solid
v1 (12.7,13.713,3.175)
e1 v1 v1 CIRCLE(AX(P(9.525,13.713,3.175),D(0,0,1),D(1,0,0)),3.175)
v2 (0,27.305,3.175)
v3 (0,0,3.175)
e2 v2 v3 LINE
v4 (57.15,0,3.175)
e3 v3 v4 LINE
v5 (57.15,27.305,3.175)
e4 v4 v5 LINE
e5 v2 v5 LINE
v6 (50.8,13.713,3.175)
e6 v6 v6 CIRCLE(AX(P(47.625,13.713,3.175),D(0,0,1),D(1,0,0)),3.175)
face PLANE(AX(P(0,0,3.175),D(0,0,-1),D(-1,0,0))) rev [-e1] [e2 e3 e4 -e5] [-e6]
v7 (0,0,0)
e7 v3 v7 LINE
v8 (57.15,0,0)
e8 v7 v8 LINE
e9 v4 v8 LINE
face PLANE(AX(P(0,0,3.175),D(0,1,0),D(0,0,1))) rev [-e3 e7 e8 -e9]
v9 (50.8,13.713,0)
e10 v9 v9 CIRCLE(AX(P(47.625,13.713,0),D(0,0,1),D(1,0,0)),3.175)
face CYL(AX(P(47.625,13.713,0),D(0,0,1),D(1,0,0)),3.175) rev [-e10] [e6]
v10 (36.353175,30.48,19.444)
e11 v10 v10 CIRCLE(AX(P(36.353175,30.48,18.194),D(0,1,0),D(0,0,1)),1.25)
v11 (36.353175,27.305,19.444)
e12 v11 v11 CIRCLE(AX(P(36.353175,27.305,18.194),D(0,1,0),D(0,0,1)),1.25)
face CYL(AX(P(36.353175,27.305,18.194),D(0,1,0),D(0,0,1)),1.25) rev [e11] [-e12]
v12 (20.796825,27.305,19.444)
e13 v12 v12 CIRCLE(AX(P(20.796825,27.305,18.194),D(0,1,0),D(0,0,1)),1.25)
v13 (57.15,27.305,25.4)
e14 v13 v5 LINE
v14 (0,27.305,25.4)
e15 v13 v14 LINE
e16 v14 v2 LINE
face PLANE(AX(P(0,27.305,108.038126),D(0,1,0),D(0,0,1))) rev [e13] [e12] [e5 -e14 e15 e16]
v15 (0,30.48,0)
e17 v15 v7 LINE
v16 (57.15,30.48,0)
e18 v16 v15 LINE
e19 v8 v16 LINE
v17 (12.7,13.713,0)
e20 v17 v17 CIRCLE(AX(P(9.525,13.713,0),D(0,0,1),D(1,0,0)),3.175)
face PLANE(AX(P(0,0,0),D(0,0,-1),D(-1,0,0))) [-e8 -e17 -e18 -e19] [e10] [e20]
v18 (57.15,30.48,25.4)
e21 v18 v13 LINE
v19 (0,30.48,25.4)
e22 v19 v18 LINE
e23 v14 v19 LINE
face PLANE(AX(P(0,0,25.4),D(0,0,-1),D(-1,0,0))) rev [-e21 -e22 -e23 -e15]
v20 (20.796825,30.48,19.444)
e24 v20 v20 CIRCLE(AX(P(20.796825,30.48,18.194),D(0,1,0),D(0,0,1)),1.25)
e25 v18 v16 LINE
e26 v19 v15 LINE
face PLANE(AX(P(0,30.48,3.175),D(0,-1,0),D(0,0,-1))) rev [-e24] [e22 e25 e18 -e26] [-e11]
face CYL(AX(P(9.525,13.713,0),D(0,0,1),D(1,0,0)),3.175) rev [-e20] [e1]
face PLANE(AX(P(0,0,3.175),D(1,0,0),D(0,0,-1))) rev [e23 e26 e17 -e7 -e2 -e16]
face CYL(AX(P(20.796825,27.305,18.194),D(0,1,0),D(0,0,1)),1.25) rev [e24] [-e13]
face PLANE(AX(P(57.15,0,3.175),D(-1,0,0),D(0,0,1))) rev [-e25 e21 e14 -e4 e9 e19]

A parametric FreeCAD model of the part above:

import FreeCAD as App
import Part
import Sketcher
from FreeCAD import Vector
Q = App.Units.Quantity


def add_polygon(sketch, points):
    """Adds a closed chain of lines whose ends are joined by coincident constraints."""
    first, n = sketch.GeometryCount, len(points)
    for a, b in zip(points, points[1:] + points[:1]):
        sketch.addGeometry(Part.LineSegment(App.Vector(*a, 0), App.Vector(*b, 0)), False)
    for i in range(n):
        sketch.addConstraint(Sketcher.Constraint("Coincident", first + i, 2, first + (i + 1) % n, 1))

doc = App.newDocument("Part")
params = doc.addObject("Spreadsheet::Sheet", "Params")
for row, (alias, value) in enumerate([
    ("sketch1_height", "1.2 in"),
    ("sketch1_width", "2.25 in"),
    ("pad1_length", "0.125 in"),
    ("sketch2_width", "2.25 in"),
    ("sketch2_height", "0.125 in"),
    ("pad2_length", "0.875 in"),
    ("pocket1_length", "0.125 in"),
    ("sketch4_diameter", "0.25 in"),
    ("pocket2_length", "0.125 in"),
], start=1):
    params.set(f"A{row}", alias)
    params.set(f"B{row}", "=" + value)
    params.setAlias(f"B{row}", alias)

body = doc.addObject("PartDesign::Body", "Body")

# Sketch on XY plane
sketch1 = body.newObject("Sketcher::SketchObject", "Sketch")
sketch1.AttachmentSupport = (doc.getObject("XY_Plane"), [""])
sketch1.MapMode = "FlatFace"
add_polygon(sketch1, [(0, 30), (0, 0), (57, 0), (57, 30)])  # lines 0-3
sketch1.addConstraint([
    Sketcher.Constraint("Vertical", 0),
    Sketcher.Constraint("Horizontal", 1),
    Sketcher.Constraint("Vertical", 2),
    Sketcher.Constraint("Horizontal", 3),
    Sketcher.Constraint("Coincident", 0, 2, -1, 1),
    Sketcher.Constraint("DistanceY", 0, 2, 0, 1, Q("1.2 in")),
    Sketcher.Constraint("DistanceX", 1, 1, 1, 2, Q("2.25 in")),
])
sketch1.setExpression("Constraints[9]", "Params.sketch1_height")
sketch1.setExpression("Constraints[10]", "Params.sketch1_width")
pad1 = body.newObject("PartDesign::Pad", "Pad")
pad1.Profile = sketch1
pad1.setExpression("Length", "Params.pad1_length")

# Sketch on XY plane
sketch2 = body.newObject("Sketcher::SketchObject", "Sketch001")
sketch2.AttachmentSupport = (doc.getObject("XY_Plane"), [""])
sketch2.MapMode = "FlatFace"
sketch2.AttachmentOffset = App.Placement(Vector(0, 0, 0.125 * 25.4), App.Rotation())
add_polygon(sketch2, [(0, 30.5), (0, 27.3), (57.1, 27.3), (57.1, 30.5)])  # lines 0-3
sketch2.addConstraint([
    Sketcher.Constraint("Vertical", 0),
    Sketcher.Constraint("Horizontal", 1),
    Sketcher.Constraint("Vertical", 2),
    Sketcher.Constraint("Horizontal", 3),
    Sketcher.Constraint("PointOnObject", 0, 2, -2),
    Sketcher.Constraint("DistanceX", 1, 1, 1, 2, Q("2.25 in")),
    Sketcher.Constraint("DistanceY", -1, 1, 2, 2, Q("1.2 in")),
    Sketcher.Constraint("DistanceY", 0, 2, 0, 1, Q("0.125 in")),
])
sketch2.setExpression("Constraints[9]", "Params.sketch2_width")
sketch2.setExpression("Constraints[11]", "Params.sketch2_height")
pad2 = body.newObject("PartDesign::Pad", "Pad001")
pad2.Profile = sketch2
pad2.setExpression("Length", "Params.pad2_length")

# Sketch on XZ plane
sketch3 = body.newObject("Sketcher::SketchObject", "Sketch002")
sketch3.AttachmentSupport = (doc.getObject("XZ_Plane"), [""])
sketch3.MapMode = "FlatFace"
sketch3.AttachmentOffset = App.Placement(Vector(0, 0, -1.2 * 25.4), App.Rotation())
sketch3.addGeometry([
    Part.Circle(Vector(36.4, 18.2, 0), Vector(0, 0, 1), 1.2),
    Part.Circle(Vector(20.8, 18.2, 0), Vector(0, 0, 1), 1.2),
], False)
sketch3.addConstraint([
    Sketcher.Constraint("Equal", 0, 1),
    Sketcher.Constraint("Horizontal", 0, 3, 1, 3),
    Sketcher.Constraint("Diameter", 0, 2.5),
    Sketcher.Constraint("DistanceY", -1, 1, 0, 3, 18.194),
    Sketcher.Constraint("DistanceX", 1, 3, 0, 3, 15.556349),
    Sketcher.Constraint("DistanceX", -1, 1, 0, 3, 36.353175),
])
pocket1 = body.newObject("PartDesign::Pocket", "Pocket")
pocket1.Profile = sketch3
pocket1.setExpression("Length", "Params.pocket1_length")
pocket1.Reversed = True

# Sketch on XY plane
sketch4 = body.newObject("Sketcher::SketchObject", "Sketch003")
sketch4.AttachmentSupport = (doc.getObject("XY_Plane"), [""])
sketch4.MapMode = "FlatFace"
sketch4.AttachmentOffset = App.Placement(Vector(0, 0, 0.125 * 25.4), App.Rotation())
sketch4.addGeometry([
    Part.Circle(Vector(47.6, 13.7, 0), Vector(0, 0, 1), 3.2),
    Part.Circle(Vector(9.5, 13.7, 0), Vector(0, 0, 1), 3.2),
], False)
sketch4.addConstraint([
    Sketcher.Constraint("Equal", 0, 1),
    Sketcher.Constraint("Horizontal", 0, 3, 1, 3),
    Sketcher.Constraint("Diameter", 0, Q("0.25 in")),
    Sketcher.Constraint("DistanceX", 1, 3, 0, 3, Q("1.5 in")),
    Sketcher.Constraint("DistanceX", -1, 1, 0, 3, Q("1.875 in")),
    Sketcher.Constraint("DistanceY", -1, 1, 0, 3, 13.713),
])
sketch4.setExpression("Constraints[2]", "Params.sketch4_diameter")
pocket2 = body.newObject("PartDesign::Pocket", "Pocket001")
pocket2.Profile = sketch4
pocket2.setExpression("Length", "Params.pocket2_length")

doc.recompute()
